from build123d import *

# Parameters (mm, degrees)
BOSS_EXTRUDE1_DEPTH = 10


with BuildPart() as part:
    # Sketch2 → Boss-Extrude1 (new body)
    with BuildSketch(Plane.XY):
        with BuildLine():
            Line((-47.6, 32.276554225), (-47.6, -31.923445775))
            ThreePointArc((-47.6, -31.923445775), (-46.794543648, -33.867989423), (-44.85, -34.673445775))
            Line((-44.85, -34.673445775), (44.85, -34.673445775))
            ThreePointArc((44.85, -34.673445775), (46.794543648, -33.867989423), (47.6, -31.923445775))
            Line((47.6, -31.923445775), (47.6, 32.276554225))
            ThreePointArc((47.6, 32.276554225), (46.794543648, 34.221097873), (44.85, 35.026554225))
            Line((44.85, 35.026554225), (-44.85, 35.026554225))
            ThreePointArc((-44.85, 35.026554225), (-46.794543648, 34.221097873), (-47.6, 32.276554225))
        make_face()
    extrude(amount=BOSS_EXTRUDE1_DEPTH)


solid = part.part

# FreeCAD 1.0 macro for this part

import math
import FreeCAD as App
import Part
import Sketcher
Q = App.Units.Quantity

doc = App.newDocument("Part")
body = doc.addObject("PartDesign::Body", "Body")

# Sketch on XY plane
sketch1 = body.newObject("Sketcher::SketchObject", "Sketch")
sketch1.AttachmentSupport = (doc.getObject("XY_Plane"), [""])
sketch1.MapMode = "FlatFace"
sketch1.addGeometry([
    Part.LineSegment(App.Vector(-47.6, 32.3, 0), App.Vector(-47.6, -31.9, 0)),  # 0
    Part.ArcOfCircle(Part.Circle(App.Vector(-44.8, -31.9, 0), App.Vector(0, 0, 1), 2.8), math.radians(-180), math.radians(-90)),  # 1
    Part.LineSegment(App.Vector(-44.9, -34.7, 0), App.Vector(44.9, -34.7, 0)),  # 2
    Part.ArcOfCircle(Part.Circle(App.Vector(44.8, -31.9, 0), App.Vector(0, 0, 1), 2.8), math.radians(-90), math.radians(0)),  # 3
    Part.LineSegment(App.Vector(47.6, -31.9, 0), App.Vector(47.6, 32.3, 0)),  # 4
    Part.ArcOfCircle(Part.Circle(App.Vector(44.8, 32.3, 0), App.Vector(0, 0, 1), 2.8), math.radians(0), math.radians(90)),  # 5
    Part.LineSegment(App.Vector(44.9, 35, 0), App.Vector(-44.9, 35, 0)),  # 6
    Part.ArcOfCircle(Part.Circle(App.Vector(-44.8, 32.3, 0), App.Vector(0, 0, 1), 2.8), math.radians(90), math.radians(180)),  # 7
], False)
sketch1.addConstraint([
    Sketcher.Constraint("Tangent", 0, 2, 1, 1),
    Sketcher.Constraint("Tangent", 1, 2, 2, 1),
    Sketcher.Constraint("Tangent", 2, 2, 3, 1),
    Sketcher.Constraint("Tangent", 3, 2, 4, 1),
    Sketcher.Constraint("Tangent", 4, 2, 5, 1),
    Sketcher.Constraint("Tangent", 5, 2, 6, 1),
    Sketcher.Constraint("Tangent", 6, 2, 7, 1),
    Sketcher.Constraint("Tangent", 7, 2, 0, 1),
    Sketcher.Constraint("Vertical", 0),
    Sketcher.Constraint("Horizontal", 2),
    Sketcher.Constraint("Vertical", 4),
    Sketcher.Constraint("Horizontal", 6),
    Sketcher.Constraint("Equal", 1, 3),
    Sketcher.Constraint("Equal", 3, 5),
    Sketcher.Constraint("Equal", 5, 7),
    Sketcher.Constraint("Radius", 1, Q("2.75 mm")),
    Sketcher.Constraint("DistanceX", 2, 1, 2, 2, Q("89.7 mm")),
    Sketcher.Constraint("DistanceY", 0, 2, 0, 1, Q("64.2 mm")),
    Sketcher.Constraint("DistanceX", 0, 2, -1, 1, Q("47.6 mm")),
    Sketcher.Constraint("DistanceY", 1, 3, -1, 1, Q("31.923446 mm")),
])
pad1 = body.newObject("PartDesign::Pad", "Pad")
pad1.Profile = sketch1
pad1.Length = 10

doc.recompute()
